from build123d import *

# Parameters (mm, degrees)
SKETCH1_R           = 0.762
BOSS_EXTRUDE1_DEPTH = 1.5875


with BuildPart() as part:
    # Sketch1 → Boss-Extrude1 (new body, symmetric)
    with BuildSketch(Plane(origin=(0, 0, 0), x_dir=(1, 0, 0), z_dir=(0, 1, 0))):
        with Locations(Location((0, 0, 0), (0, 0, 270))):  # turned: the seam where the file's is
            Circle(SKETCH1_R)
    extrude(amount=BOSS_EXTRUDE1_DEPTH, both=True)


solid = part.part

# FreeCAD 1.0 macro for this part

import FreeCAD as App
import Part
import Sketcher

V = App.Vector
Q = App.Units.Quantity

doc = App.newDocument("Part")
body = doc.addObject("PartDesign::Body", "Body")

# Sketch on XZ plane
sketch1 = body.newObject("Sketcher::SketchObject", "Sketch")
sketch1.AttachmentSupport = (doc.getObject("XZ_Plane"), [""])
sketch1.MapMode = "FlatFace"
sketch1.addGeometry(Part.Circle(V(0, 0, 0), V(0, 0, 1), 0.8), False)
sketch1.addConstraint([
    Sketcher.Constraint("Coincident", 0, 3, -1, 1),
    Sketcher.Constraint("Diameter", 0, Q("0.06 in")),
])
pad1 = body.newObject("PartDesign::Pad", "Pad")
pad1.Profile = sketch1
pad1.Length = Q("0.125 in")
pad1.Midplane = True

doc.recompute()
